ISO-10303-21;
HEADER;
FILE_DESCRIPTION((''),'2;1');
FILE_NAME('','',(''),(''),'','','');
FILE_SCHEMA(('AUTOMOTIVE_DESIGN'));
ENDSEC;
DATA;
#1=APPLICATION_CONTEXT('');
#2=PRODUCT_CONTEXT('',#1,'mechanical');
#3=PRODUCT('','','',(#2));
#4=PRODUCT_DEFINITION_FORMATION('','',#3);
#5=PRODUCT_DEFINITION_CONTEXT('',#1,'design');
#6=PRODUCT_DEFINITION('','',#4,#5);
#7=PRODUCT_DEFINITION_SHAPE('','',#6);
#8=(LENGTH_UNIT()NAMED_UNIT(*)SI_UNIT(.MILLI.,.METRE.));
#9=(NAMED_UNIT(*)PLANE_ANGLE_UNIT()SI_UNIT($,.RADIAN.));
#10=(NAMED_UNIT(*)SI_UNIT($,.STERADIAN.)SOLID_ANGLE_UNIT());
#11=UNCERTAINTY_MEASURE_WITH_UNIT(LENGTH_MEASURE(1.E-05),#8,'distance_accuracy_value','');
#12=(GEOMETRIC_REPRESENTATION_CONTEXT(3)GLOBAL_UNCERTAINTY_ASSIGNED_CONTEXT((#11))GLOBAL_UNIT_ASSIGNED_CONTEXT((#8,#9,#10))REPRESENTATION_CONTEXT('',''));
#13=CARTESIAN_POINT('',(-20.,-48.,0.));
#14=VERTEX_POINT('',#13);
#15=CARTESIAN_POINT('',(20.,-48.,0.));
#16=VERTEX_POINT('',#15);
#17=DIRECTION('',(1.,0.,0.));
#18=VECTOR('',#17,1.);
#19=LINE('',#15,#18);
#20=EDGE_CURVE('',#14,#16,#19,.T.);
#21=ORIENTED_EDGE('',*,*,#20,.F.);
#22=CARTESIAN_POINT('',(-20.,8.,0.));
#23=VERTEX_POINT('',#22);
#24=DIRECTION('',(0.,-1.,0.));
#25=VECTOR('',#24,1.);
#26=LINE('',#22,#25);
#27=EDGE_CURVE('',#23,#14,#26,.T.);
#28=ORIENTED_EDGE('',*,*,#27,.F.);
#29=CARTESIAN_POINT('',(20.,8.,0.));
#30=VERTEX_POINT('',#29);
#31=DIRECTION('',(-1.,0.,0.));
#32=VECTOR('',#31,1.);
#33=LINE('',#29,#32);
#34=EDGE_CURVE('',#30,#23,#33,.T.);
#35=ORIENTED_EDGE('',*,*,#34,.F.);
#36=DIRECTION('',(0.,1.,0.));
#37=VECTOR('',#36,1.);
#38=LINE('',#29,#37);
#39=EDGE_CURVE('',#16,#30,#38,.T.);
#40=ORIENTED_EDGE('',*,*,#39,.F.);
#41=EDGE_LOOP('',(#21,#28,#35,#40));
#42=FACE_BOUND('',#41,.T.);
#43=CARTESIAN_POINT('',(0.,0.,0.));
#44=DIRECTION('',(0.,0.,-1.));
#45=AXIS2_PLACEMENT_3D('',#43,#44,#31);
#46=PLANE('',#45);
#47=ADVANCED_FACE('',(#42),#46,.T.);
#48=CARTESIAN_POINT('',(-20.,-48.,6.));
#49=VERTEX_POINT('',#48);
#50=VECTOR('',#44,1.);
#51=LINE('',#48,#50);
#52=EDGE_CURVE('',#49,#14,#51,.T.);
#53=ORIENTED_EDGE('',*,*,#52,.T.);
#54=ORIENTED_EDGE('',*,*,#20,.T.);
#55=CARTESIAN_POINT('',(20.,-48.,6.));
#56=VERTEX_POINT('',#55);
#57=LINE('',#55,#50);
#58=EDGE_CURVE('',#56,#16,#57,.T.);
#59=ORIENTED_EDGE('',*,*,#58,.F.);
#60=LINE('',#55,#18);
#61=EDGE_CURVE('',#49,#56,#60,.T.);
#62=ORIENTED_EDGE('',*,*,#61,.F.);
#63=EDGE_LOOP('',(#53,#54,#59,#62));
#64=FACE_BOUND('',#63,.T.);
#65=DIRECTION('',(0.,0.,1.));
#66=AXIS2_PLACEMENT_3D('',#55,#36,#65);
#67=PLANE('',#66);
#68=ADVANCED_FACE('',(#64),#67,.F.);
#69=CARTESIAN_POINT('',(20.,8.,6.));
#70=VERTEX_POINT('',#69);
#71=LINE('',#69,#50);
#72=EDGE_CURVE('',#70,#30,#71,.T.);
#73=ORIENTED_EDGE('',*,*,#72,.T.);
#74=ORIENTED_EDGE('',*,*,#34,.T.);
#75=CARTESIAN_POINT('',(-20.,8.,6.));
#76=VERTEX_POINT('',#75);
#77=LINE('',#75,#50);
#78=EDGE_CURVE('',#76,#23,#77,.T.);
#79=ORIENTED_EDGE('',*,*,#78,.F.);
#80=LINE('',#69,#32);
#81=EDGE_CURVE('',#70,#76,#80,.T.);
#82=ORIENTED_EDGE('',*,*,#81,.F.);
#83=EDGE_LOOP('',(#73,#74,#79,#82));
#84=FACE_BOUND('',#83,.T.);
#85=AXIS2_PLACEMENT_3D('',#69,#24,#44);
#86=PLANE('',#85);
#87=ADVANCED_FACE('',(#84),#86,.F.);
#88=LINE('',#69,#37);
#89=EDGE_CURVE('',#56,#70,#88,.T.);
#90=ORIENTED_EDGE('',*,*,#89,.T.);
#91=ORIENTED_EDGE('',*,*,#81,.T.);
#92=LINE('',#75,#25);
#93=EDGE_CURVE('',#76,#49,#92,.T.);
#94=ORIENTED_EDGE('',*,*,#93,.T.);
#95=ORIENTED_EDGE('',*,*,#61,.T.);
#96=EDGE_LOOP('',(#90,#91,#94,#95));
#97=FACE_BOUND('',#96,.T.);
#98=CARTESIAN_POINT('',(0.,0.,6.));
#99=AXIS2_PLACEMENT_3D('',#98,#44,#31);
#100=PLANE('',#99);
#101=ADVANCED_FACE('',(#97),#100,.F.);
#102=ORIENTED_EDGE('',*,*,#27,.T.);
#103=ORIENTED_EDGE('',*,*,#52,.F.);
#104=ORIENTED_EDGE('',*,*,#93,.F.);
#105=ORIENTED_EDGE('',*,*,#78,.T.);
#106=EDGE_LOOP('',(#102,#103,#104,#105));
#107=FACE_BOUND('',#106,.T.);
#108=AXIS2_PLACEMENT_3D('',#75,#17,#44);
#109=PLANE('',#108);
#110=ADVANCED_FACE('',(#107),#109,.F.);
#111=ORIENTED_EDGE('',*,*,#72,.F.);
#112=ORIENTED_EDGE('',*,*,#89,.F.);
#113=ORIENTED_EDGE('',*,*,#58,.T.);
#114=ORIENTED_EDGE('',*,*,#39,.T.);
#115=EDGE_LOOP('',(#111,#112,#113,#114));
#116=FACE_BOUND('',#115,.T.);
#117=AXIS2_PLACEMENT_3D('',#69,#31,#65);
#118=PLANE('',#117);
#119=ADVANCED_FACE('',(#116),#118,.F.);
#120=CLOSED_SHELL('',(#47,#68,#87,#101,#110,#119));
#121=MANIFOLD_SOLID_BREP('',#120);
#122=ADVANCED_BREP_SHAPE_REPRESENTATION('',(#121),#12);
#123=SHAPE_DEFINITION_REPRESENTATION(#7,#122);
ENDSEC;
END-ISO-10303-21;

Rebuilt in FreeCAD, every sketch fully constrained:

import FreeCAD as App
import Part
import Sketcher
Q = App.Units.Quantity

doc = App.newDocument("Part")
params = doc.addObject("Spreadsheet::Sheet", "Params")
for row, (alias, value) in enumerate([
    ("sketch1_width", "40 mm"),
    ("sketch1_height", "56 mm"),
    ("pad1_length", "6 mm"),
], start=1):
    params.set(f"A{row}", alias)
    params.set(f"B{row}", "=" + value)
    params.setAlias(f"B{row}", alias)

body = doc.addObject("PartDesign::Body", "Body")

sketch1 = body.newObject("Sketcher::SketchObject", "Sketch")
sketch1.AttachmentSupport = (doc.getObject("XY_Plane"), [""])
sketch1.MapMode = "FlatFace"
sketch1.addGeometry([
    Part.LineSegment(App.Vector(-20, 8, 0), App.Vector(-20, -48, 0)),
    Part.LineSegment(App.Vector(-20, -48, 0), App.Vector(20, -48, 0)),
    Part.LineSegment(App.Vector(20, -48, 0), App.Vector(20, 8, 0)),
    Part.LineSegment(App.Vector(20, 8, 0), App.Vector(-20, 8, 0)),
], False)
sketch1.addConstraint([
    Sketcher.Constraint("Coincident", 0, 2, 1, 1),
    Sketcher.Constraint("Coincident", 1, 2, 2, 1),
    Sketcher.Constraint("Coincident", 2, 2, 3, 1),
    Sketcher.Constraint("Coincident", 3, 2, 0, 1),
    Sketcher.Constraint("Vertical", 0),
    Sketcher.Constraint("Horizontal", 1),
    Sketcher.Constraint("Vertical", 2),
    Sketcher.Constraint("Horizontal", 3),
    Sketcher.Constraint("DistanceX", 1, 1, 1, 2, Q("40 mm")),
    Sketcher.Constraint("DistanceY", 0, 2, 0, 1, Q("56 mm")),
    Sketcher.Constraint("DistanceX", 0, 2, -1, 1, Q("20 mm")),
    Sketcher.Constraint("DistanceY", 0, 2, -1, 1, Q("48 mm")),
])
sketch1.setExpression("Constraints[8]", "Params.sketch1_width")
sketch1.setExpression("Constraints[9]", "Params.sketch1_height")
pad1 = body.newObject("PartDesign::Pad", "Pad")
pad1.Profile = sketch1
pad1.setExpression("Length", "Params.pad1_length")

doc.recompute()
